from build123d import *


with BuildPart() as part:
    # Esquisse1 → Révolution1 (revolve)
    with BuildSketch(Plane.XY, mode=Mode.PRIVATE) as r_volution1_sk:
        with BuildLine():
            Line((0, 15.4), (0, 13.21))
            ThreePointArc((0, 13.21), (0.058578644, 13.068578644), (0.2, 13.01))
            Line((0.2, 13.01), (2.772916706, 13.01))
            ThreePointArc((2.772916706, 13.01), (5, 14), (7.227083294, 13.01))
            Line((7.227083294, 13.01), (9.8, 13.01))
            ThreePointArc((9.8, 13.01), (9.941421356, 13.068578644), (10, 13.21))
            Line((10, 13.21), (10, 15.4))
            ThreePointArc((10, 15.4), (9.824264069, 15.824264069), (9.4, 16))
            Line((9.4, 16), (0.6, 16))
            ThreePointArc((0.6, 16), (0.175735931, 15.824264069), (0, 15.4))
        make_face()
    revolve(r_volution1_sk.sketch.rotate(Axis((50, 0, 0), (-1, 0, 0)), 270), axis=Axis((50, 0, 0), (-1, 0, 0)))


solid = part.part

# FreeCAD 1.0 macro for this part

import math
import FreeCAD as App
import Part
import Sketcher

V = App.Vector

doc = App.newDocument("Part")
body = doc.addObject("PartDesign::Body", "Body")

sketch1 = doc.addObject("Sketcher::SketchObject", "Sketch")
body.addObject(sketch1)
sketch1.AttachmentSupport = (doc.XY_Plane, [""])
sketch1.MapMode = "FlatFace"
sketch1.addGeometry(Part.LineSegment(V(0, 15.4, 0), V(0, 13.21, 0)), False)
sketch1.addGeometry(Part.ArcOfCircle(Part.Circle(V(0.2, 13.21, 0), V(0, 0, 1), 0.2), math.radians(-180), math.radians(-90)), False)
sketch1.addGeometry(Part.LineSegment(V(0.2, 13.01, 0), V(2.772917, 13.01, 0)), False)
sketch1.addGeometry(Part.ArcOfCircle(Part.Circle(V(5, 11, 0), V(0, 0, 1), 3), math.radians(42.067065), math.radians(137.932935)), False)
sketch1.addGeometry(Part.LineSegment(V(7.227083, 13.01, 0), V(9.8, 13.01, 0)), False)
sketch1.addGeometry(Part.ArcOfCircle(Part.Circle(V(9.8, 13.21, 0), V(0, 0, 1), 0.2), math.radians(-90), math.radians(0)), False)
sketch1.addGeometry(Part.LineSegment(V(10, 13.21, 0), V(10, 15.4, 0)), False)
sketch1.addGeometry(Part.ArcOfCircle(Part.Circle(V(9.4, 15.4, 0), V(0, 0, 1), 0.6), math.radians(0), math.radians(90)), False)
sketch1.addGeometry(Part.LineSegment(V(9.4, 16, 0), V(0.6, 16, 0)), False)
sketch1.addGeometry(Part.ArcOfCircle(Part.Circle(V(0.6, 15.4, 0), V(0, 0, 1), 0.6), math.radians(90), math.radians(180)), False)
sketch1.addConstraint(Sketcher.Constraint("Tangent", 0, 2, 1, 1))
sketch1.addConstraint(Sketcher.Constraint("Tangent", 1, 2, 2, 1))
sketch1.addConstraint(Sketcher.Constraint("Coincident", 2, 2, 3, 2))
sketch1.addConstraint(Sketcher.Constraint("Coincident", 3, 1, 4, 1))
sketch1.addConstraint(Sketcher.Constraint("Tangent", 4, 2, 5, 1))
sketch1.addConstraint(Sketcher.Constraint("Tangent", 5, 2, 6, 1))
sketch1.addConstraint(Sketcher.Constraint("Tangent", 6, 2, 7, 1))
sketch1.addConstraint(Sketcher.Constraint("Tangent", 7, 2, 8, 1))
sketch1.addConstraint(Sketcher.Constraint("Tangent", 8, 2, 9, 1))
sketch1.addConstraint(Sketcher.Constraint("Tangent", 9, 2, 0, 1))
sketch1.addConstraint(Sketcher.Constraint("Vertical", 0))
sketch1.addConstraint(Sketcher.Constraint("Horizontal", 2))
sketch1.addConstraint(Sketcher.Constraint("Horizontal", 4))
sketch1.addConstraint(Sketcher.Constraint("Vertical", 6))
sketch1.addConstraint(Sketcher.Constraint("Horizontal", 8))
sketch1.addConstraint(Sketcher.Constraint("Equal", 1, 5))
sketch1.addConstraint(Sketcher.Constraint("Equal", 7, 9))
sketch1.addConstraint(Sketcher.Constraint("PointOnObject", 0, 2, -2))
sketch1.addConstraint(Sketcher.Constraint("Horizontal", 1, 3, 5, 3))
sketch1.addConstraint(Sketcher.Constraint("Equal", 2, 4))
sketch1.addConstraint(Sketcher.Constraint("Radius", 3, 3.0))
sketch1.addConstraint(Sketcher.Constraint("Radius", 1, 0.2))
sketch1.addConstraint(Sketcher.Constraint("Radius", 7, 0.6))
sketch1.addConstraint(Sketcher.Constraint("DistanceX", 8, 2, 8, 1, 8.8))
sketch1.addConstraint(Sketcher.Constraint("DistanceY", -1, 1, 3, 3, 11.0))
sketch1.addConstraint(Sketcher.Constraint("DistanceY", -1, 1, 7, 2, 16.0))
sketch1.addConstraint(Sketcher.Constraint("DistanceY", 0, 2, 0, 1, 2.19))
revolution = doc.addObject("PartDesign::Revolution", "Revolution")
body.addObject(revolution)
revolution.Profile = sketch1
revolution.ReferenceAxis = (sketch1, ["H_Axis"])
revolution.Angle = 360

doc.recompute()
